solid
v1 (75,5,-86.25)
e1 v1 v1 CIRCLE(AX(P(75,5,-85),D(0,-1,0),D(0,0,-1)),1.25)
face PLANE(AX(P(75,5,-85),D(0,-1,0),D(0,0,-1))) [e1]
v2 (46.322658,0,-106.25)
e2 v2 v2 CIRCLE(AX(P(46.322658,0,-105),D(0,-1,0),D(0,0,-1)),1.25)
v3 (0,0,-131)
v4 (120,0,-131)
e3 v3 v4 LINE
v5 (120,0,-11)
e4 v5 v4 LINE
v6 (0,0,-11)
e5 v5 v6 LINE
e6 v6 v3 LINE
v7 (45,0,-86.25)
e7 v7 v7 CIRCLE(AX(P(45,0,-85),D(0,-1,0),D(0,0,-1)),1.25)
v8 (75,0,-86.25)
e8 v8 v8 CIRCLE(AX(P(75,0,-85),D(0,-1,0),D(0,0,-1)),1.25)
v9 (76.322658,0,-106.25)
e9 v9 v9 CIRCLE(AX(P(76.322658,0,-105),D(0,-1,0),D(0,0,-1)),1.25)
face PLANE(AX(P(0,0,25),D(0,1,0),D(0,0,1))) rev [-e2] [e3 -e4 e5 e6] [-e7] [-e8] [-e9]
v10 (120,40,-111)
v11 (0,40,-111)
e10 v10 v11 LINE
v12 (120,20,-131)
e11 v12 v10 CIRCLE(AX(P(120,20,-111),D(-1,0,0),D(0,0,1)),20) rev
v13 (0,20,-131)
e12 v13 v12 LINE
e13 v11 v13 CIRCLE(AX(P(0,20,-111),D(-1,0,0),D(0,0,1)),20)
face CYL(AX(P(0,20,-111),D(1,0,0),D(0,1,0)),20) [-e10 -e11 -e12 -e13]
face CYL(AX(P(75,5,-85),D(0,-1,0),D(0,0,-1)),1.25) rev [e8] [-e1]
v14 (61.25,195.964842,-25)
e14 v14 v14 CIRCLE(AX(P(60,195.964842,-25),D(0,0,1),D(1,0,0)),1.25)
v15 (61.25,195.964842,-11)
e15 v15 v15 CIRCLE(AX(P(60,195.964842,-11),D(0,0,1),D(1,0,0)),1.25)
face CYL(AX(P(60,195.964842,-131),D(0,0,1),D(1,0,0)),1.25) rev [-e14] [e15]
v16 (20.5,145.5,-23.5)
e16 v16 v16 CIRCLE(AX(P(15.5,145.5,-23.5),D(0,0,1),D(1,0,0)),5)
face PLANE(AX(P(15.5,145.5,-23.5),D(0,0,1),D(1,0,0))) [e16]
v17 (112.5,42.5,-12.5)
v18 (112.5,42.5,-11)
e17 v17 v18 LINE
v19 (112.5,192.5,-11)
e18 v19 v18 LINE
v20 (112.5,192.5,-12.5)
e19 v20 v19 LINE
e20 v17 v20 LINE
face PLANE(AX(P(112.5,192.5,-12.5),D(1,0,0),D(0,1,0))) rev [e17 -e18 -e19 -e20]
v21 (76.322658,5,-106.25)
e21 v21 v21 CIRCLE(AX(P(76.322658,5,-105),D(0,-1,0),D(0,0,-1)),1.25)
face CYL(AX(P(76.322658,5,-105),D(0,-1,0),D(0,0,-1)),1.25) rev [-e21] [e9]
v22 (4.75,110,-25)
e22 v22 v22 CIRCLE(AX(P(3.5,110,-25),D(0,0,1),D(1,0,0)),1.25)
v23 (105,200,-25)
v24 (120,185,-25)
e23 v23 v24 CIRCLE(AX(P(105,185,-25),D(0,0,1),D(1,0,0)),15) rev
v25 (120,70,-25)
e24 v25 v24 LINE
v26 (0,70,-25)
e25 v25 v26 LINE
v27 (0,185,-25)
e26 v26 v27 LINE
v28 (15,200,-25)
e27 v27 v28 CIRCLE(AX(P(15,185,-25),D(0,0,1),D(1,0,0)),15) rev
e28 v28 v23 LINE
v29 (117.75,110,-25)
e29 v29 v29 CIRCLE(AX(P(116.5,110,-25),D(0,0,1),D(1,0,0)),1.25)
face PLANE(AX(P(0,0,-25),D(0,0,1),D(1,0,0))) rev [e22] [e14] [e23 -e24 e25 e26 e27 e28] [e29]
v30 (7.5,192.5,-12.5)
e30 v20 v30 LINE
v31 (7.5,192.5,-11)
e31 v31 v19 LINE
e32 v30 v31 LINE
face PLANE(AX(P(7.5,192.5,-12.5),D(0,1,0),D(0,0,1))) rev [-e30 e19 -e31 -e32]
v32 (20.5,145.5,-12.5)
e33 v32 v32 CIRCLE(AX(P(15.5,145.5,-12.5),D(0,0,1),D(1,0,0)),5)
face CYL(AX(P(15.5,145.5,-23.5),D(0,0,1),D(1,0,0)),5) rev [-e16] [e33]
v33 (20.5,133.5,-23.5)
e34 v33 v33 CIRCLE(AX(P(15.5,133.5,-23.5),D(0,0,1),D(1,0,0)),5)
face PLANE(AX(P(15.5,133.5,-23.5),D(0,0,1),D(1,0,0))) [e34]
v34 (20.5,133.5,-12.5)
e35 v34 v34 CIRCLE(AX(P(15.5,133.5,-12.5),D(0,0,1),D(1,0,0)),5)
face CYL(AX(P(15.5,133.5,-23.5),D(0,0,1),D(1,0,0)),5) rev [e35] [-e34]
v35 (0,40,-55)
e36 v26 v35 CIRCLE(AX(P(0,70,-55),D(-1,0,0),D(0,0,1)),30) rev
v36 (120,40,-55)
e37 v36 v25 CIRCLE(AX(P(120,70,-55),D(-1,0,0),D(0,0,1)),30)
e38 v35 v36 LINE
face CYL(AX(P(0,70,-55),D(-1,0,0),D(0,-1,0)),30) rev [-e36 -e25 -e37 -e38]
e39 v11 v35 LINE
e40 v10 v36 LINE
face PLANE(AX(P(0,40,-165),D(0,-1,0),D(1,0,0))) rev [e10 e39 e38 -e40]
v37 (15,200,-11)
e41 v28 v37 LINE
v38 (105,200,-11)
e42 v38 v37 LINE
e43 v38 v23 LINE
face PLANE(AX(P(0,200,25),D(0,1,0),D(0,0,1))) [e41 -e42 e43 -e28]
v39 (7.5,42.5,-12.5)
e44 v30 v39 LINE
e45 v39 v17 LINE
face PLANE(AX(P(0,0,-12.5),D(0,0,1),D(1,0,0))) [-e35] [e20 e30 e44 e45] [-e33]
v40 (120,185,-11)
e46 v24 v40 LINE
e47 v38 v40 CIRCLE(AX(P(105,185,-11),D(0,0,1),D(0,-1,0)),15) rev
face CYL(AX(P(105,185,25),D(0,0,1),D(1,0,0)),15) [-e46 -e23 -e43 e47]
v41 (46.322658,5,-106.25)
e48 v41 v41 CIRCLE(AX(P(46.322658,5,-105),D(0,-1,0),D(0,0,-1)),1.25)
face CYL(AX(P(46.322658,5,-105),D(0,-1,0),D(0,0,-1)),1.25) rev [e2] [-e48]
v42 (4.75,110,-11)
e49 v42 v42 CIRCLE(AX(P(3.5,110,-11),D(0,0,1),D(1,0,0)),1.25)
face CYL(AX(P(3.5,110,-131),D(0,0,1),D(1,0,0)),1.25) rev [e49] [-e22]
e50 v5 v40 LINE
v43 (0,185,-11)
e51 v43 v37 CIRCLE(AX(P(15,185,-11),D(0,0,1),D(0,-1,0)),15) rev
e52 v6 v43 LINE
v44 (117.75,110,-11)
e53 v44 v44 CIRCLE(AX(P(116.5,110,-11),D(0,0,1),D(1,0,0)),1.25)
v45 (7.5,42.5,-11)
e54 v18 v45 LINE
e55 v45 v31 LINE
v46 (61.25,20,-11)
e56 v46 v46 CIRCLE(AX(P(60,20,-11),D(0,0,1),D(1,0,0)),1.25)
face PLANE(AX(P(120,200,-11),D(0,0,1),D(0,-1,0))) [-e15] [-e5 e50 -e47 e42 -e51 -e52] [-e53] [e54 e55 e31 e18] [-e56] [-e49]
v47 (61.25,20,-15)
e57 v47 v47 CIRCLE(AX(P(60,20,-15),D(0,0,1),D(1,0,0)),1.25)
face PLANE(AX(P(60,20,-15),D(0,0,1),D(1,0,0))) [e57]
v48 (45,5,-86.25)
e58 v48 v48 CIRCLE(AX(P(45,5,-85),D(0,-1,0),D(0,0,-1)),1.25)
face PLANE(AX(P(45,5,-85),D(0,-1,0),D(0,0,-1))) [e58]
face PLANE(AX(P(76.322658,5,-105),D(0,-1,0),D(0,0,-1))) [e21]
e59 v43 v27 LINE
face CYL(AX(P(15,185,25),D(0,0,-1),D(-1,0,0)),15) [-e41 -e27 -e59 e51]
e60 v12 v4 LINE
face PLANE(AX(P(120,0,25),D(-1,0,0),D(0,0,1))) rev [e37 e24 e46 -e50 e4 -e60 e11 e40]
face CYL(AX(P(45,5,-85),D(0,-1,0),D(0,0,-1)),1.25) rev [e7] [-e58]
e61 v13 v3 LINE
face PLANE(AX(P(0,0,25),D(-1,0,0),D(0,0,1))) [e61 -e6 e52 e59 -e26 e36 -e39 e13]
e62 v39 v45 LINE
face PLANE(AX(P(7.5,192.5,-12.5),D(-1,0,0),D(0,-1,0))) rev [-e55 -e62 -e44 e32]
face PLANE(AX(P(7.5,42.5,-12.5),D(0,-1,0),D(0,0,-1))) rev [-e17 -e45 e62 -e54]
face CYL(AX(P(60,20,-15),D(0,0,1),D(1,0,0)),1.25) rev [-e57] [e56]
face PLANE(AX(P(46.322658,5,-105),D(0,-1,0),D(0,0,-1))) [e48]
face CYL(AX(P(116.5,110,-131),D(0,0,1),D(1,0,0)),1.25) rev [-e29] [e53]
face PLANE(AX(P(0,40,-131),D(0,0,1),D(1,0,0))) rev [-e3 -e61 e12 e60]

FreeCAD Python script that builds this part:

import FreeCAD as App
import Part
import Sketcher


def edges_at(feature, points):
    """Names of the edges that pass closest to the given points."""
    edges = feature.Shape.Edges
    near = lambda p: min(range(len(edges)), key=lambda i: edges[i].distToShape(Part.Vertex(*p))[0])
    return sorted({f"Edge{near(p) + 1}" for p in points})


def add_polygon(sketch, points):
    """Adds a closed chain of lines whose ends are joined by coincident constraints."""
    first, n = sketch.GeometryCount, len(points)
    for a, b in zip(points, points[1:] + points[:1]):
        sketch.addGeometry(Part.LineSegment(App.Vector(*a, 0), App.Vector(*b, 0)), False)
    for i in range(n):
        sketch.addConstraint(Sketcher.Constraint("Coincident", first + i, 2, first + (i + 1) % n, 1))

doc = App.newDocument("Part")
body = doc.addObject("PartDesign::Body", "Body")

# Sketch on XY plane
sketch1 = doc.addObject("Sketcher::SketchObject", "Sketch")
body.addObject(sketch1)
sketch1.AttachmentSupport = (doc.XY_Plane, [""])
sketch1.MapMode = "FlatFace"
add_polygon(sketch1, [(0, 200), (0, 0), (120, 0), (120, 200)])  # lines 0-3
sketch1.addConstraint([
    Sketcher.Constraint("Vertical", 0),
    Sketcher.Constraint("Horizontal", 1),
    Sketcher.Constraint("Vertical", 2),
    Sketcher.Constraint("Horizontal", 3),
    Sketcher.Constraint("Coincident", 0, 2, -1, 1),
    Sketcher.Constraint("DistanceX", 1, 1, 1, 2, 120.0),
    Sketcher.Constraint("DistanceY", 0, 2, 0, 1, 200.0),
])
pad1 = doc.addObject("PartDesign::Pad", "Pad")
body.addObject(pad1)
pad1.Profile = sketch1
pad1.Length = 50
pad1.Midplane = True

# Sketch on XY plane
sketch2 = doc.addObject("Sketcher::SketchObject", "Sketch001")
body.addObject(sketch2)
sketch2.AttachmentSupport = (doc.XY_Plane, [""])
sketch2.MapMode = "FlatFace"
sketch2.AttachmentOffset = App.Placement(App.Vector(0, 0, 25), App.Rotation())
add_polygon(sketch2, [(0, 40), (0, 0), (120, 0), (120, 40)])  # lines 0-3
sketch2.addConstraint([
    Sketcher.Constraint("Vertical", 0),
    Sketcher.Constraint("Horizontal", 1),
    Sketcher.Constraint("Vertical", 2),
    Sketcher.Constraint("Horizontal", 3),
    Sketcher.Constraint("Coincident", 0, 2, -1, 1),
    Sketcher.Constraint("DistanceX", 1, 1, 1, 2, 120.0),
    Sketcher.Constraint("DistanceY", 0, 2, 0, 1, 40.0),
])
pad2 = doc.addObject("PartDesign::Pad", "Pad001")
body.addObject(pad2)
pad2.Profile = sketch2
pad2.Length = 70
doc.recompute()

fillet = doc.addObject("PartDesign::Fillet", "Fillet")
body.addObject(fillet)
fillet.Base = (pad2, edges_at(pad2, [(60, 40, 25)]))
fillet.Radius = 15

# Sketch on XY plane
sketch3 = doc.addObject("Sketcher::SketchObject", "Sketch002")
body.addObject(sketch3)
sketch3.AttachmentSupport = (doc.XY_Plane, [""])
sketch3.MapMode = "FlatFace"
sketch3.AttachmentOffset = App.Placement(App.Vector(0, 0, -25), App.Rotation())
add_polygon(sketch3, [(120, 40), (120, 0), (0, 0), (0, 40)])  # lines 0-3
sketch3.addConstraint([
    Sketcher.Constraint("Vertical", 0),
    Sketcher.Constraint("Horizontal", 1),
    Sketcher.Constraint("Vertical", 2),
    Sketcher.Constraint("Horizontal", 3),
    Sketcher.Constraint("Coincident", 1, 2, -1, 1),
    Sketcher.Constraint("DistanceX", 1, 2, 1, 1, 120.0),
    Sketcher.Constraint("DistanceY", 0, 2, 0, 1, 40.0),
])
pad3 = doc.addObject("PartDesign::Pad", "Pad002")
body.addObject(pad3)
pad3.Profile = sketch3
pad3.Length = 140
pad3.Reversed = True
doc.recompute()

fillet2 = doc.addObject("PartDesign::Fillet", "Fillet001")
body.addObject(fillet2)
fillet2.Base = (pad3, edges_at(pad3, [(60, 40, -25)]))
fillet2.Radius = 30

# Sketch on XY plane
sketch4 = doc.addObject("Sketcher::SketchObject", "Sketch003")
body.addObject(sketch4)
sketch4.AttachmentSupport = (doc.XY_Plane, [""])
sketch4.MapMode = "FlatFace"
sketch4.AttachmentOffset = App.Placement(App.Vector(0, 0, 95), App.Rotation())
add_polygon(sketch4, [(35, 35), (35, 5), (85, 5), (85, 35)])  # lines 0-3
sketch4.addConstraint([
    Sketcher.Constraint("Vertical", 0),
    Sketcher.Constraint("Horizontal", 1),
    Sketcher.Constraint("Vertical", 2),
    Sketcher.Constraint("Horizontal", 3),
    Sketcher.Constraint("DistanceX", 1, 1, 1, 2, 50.0),
    Sketcher.Constraint("DistanceY", 0, 2, 0, 1, 30.0),
    Sketcher.Constraint("DistanceX", -1, 1, 0, 2, 35.0),
    Sketcher.Constraint("DistanceY", -1, 1, 0, 2, 5.0),
])
pad4 = doc.addObject("PartDesign::Pad", "Pad003")
body.addObject(pad4)
pad4.Profile = sketch4
pad4.Length = 7.5
pad4.Reversed = True

# Sketch on XZ plane
sketch5 = doc.addObject("Sketcher::SketchObject", "Sketch004")
body.addObject(sketch5)
sketch5.AttachmentSupport = (doc.XZ_Plane, [""])
sketch5.MapMode = "FlatFace"
add_polygon(sketch5, [(10, 85), (10, 5), (110, 5), (110, 85)])  # lines 0-3
sketch5.addConstraint([
    Sketcher.Constraint("Vertical", 0),
    Sketcher.Constraint("Horizontal", 1),
    Sketcher.Constraint("Vertical", 2),
    Sketcher.Constraint("Horizontal", 3),
    Sketcher.Constraint("DistanceX", 1, 1, 1, 2, 100.0),
    Sketcher.Constraint("DistanceY", 0, 2, 0, 1, 80.0),
    Sketcher.Constraint("DistanceX", -1, 1, 0, 2, 10.0),
    Sketcher.Constraint("DistanceY", -1, 1, 0, 2, 5.0),
])
pocket1 = doc.addObject("PartDesign::Pocket", "Pocket")
body.addObject(pocket1)
pocket1.Profile = sketch5
pocket1.Length = 35

# Sketch on XY plane
sketch6 = doc.addObject("Sketcher::SketchObject", "Sketch005")
body.addObject(sketch6)
sketch6.AttachmentSupport = (doc.XY_Plane, [""])
sketch6.MapMode = "FlatFace"
sketch6.AttachmentOffset = App.Placement(App.Vector(0, 0, 95), App.Rotation())
sketch6.addGeometry(Part.Circle(App.Vector(48, 20, 0), App.Vector(0, 0, 1), 8), False)
sketch6.addConstraint([
    Sketcher.Constraint("Diameter", 0, 15.0),
    Sketcher.Constraint("DistanceY", -1, 1, 0, 3, 20.0),
    Sketcher.Constraint("DistanceX", -1, 1, 0, 3, 47.5),
])
pocket2 = doc.addObject("PartDesign::Pocket", "Pocket001")
body.addObject(pocket2)
pocket2.Profile = sketch6
pocket2.Type = "UpToFirst"

# Sketch on XY plane
sketch7 = doc.addObject("Sketcher::SketchObject", "Sketch006")
body.addObject(sketch7)
sketch7.AttachmentSupport = (doc.XY_Plane, [""])
sketch7.MapMode = "FlatFace"
sketch7.AttachmentOffset = App.Placement(App.Vector(0, 0, 95), App.Rotation())
sketch7.addGeometry(Part.Circle(App.Vector(72, 20, 0), App.Vector(0, 0, 1), 8), False)
sketch7.addConstraint([
    Sketcher.Constraint("Diameter", 0, 15.0),
    Sketcher.Constraint("DistanceY", -1, 1, 0, 3, 20.0),
    Sketcher.Constraint("DistanceX", -1, 1, 0, 3, 72.5),
])
pocket3 = doc.addObject("PartDesign::Pocket", "Pocket002")
body.addObject(pocket3)
pocket3.Profile = sketch7
pocket3.Type = "UpToFirst"

# Sketch on XY plane
sketch8 = doc.addObject("Sketcher::SketchObject", "Sketch007")
body.addObject(sketch8)
sketch8.AttachmentSupport = (doc.XY_Plane, [""])
sketch8.MapMode = "FlatFace"
sketch8.AttachmentOffset = App.Placement(App.Vector(0, 0, 85), App.Rotation())
add_polygon(sketch8, [(85, 35), (85, 5), (35, 5), (35, 35)])  # lines 0-3
sketch8.addConstraint([
    Sketcher.Constraint("Vertical", 0),
    Sketcher.Constraint("Horizontal", 1),
    Sketcher.Constraint("Vertical", 2),
    Sketcher.Constraint("Horizontal", 3),
    Sketcher.Constraint("DistanceX", 1, 2, 1, 1, 50.0),
    Sketcher.Constraint("DistanceY", 0, 2, 0, 1, 30.0),
    Sketcher.Constraint("DistanceX", -1, 1, 0, 2, 85.0),
    Sketcher.Constraint("DistanceY", -1, 1, 0, 2, 5.0),
])
pocket4 = doc.addObject("PartDesign::Pocket", "Pocket003")
body.addObject(pocket4)
pocket4.Profile = sketch8
pocket4.Length = 5
pocket4.Reversed = True

# Sketch on YZ plane
sketch9 = doc.addObject("Sketcher::SketchObject", "Sketch008")
body.addObject(sketch9)
sketch9.AttachmentSupport = (doc.YZ_Plane, [""])
sketch9.MapMode = "FlatFace"
sketch9.AttachmentOffset = App.Placement(App.Vector(0, 0, 120), App.Rotation())
sketch9.addGeometry(Part.Circle(App.Vector(20, 60, 0), App.Vector(0, 0, 1), 12), False)
sketch9.addConstraint([
    Sketcher.Constraint("Diameter", 0, 25.0),
    Sketcher.Constraint("DistanceX", -1, 1, 0, 3, 20.0),
    Sketcher.Constraint("DistanceY", -1, 1, 0, 3, 60.0),
])
pocket5 = doc.addObject("PartDesign::Pocket", "Pocket004")
body.addObject(pocket5)
pocket5.Profile = sketch9
pocket5.Type = "ThroughAll"
pocket5.Midplane = True

# Sketch on XY plane
sketch10 = doc.addObject("Sketcher::SketchObject", "Sketch009")
body.addObject(sketch10)
sketch10.AttachmentSupport = (doc.XY_Plane, [""])
sketch10.MapMode = "FlatFace"
sketch10.AttachmentOffset = App.Placement(App.Vector(0, 0, 85), App.Rotation())
add_polygon(sketch10, [(68, 5), (68, 0), (52, 0), (52, 5)])  # lines 0-3
sketch10.addConstraint([
    Sketcher.Constraint("Vertical", 0),
    Sketcher.Constraint("Horizontal", 1),
    Sketcher.Constraint("Vertical", 2),
    Sketcher.Constraint("Horizontal", 3),
    Sketcher.Constraint("PointOnObject", 0, 2, -1),
    Sketcher.Constraint("DistanceX", 1, 2, 1, 1, 15.0),
    Sketcher.Constraint("DistanceY", 0, 2, 0, 1, 5.0),
    Sketcher.Constraint("DistanceX", -1, 1, 0, 2, 67.5),
])
pocket6 = doc.addObject("PartDesign::Pocket", "Pocket005")
body.addObject(pocket6)
pocket6.Profile = sketch10
pocket6.Length = 3
pocket6.Reversed = True

# Sketch on XY plane
sketch11 = doc.addObject("Sketcher::SketchObject", "Sketch010")
body.addObject(sketch11)
sketch11.AttachmentSupport = (doc.XY_Plane, [""])
sketch11.MapMode = "FlatFace"
add_polygon(sketch11, [(-6, 207), (-6, -23), (136, -23), (136, 207)])  # lines 0-3
sketch11.addConstraint([
    Sketcher.Constraint("Vertical", 0),
    Sketcher.Constraint("Horizontal", 1),
    Sketcher.Constraint("Vertical", 2),
    Sketcher.Constraint("Horizontal", 3),
    Sketcher.Constraint("DistanceX", 1, 1, 1, 2, 142.93336),
    Sketcher.Constraint("DistanceY", 0, 2, 0, 1, 230.615169),
    Sketcher.Constraint("DistanceY", 0, 2, -1, 1, 23.383099),
    Sketcher.Constraint("DistanceX", 0, 2, -1, 1, 6.499078),
])
pocket7 = doc.addObject("PartDesign::Pocket", "Pocket006")
body.addObject(pocket7)
pocket7.Profile = sketch11
pocket7.Length = 141
pocket7.Reversed = True

# Sketch on XY plane
sketch12 = doc.addObject("Sketcher::SketchObject", "Sketch011")
body.addObject(sketch12)
sketch12.AttachmentSupport = (doc.XY_Plane, [""])
sketch12.MapMode = "FlatFace"
add_polygon(sketch12, [(8, 192), (8, 42), (112, 42), (112, 192)])  # lines 0-3
sketch12.addConstraint([
    Sketcher.Constraint("Vertical", 0),
    Sketcher.Constraint("Horizontal", 1),
    Sketcher.Constraint("Vertical", 2),
    Sketcher.Constraint("Horizontal", 3),
    Sketcher.Constraint("DistanceX", 1, 1, 1, 2, 105.0),
    Sketcher.Constraint("DistanceY", 0, 2, 0, 1, 150.0),
    Sketcher.Constraint("DistanceX", -1, 1, 0, 2, 7.5),
    Sketcher.Constraint("DistanceY", -1, 1, 0, 2, 42.5),
])
pocket8 = doc.addObject("PartDesign::Pocket", "Pocket007")
body.addObject(pocket8)
pocket8.Profile = sketch12
pocket8.Length = 12.5

# Sketch on XZ plane
sketch13 = doc.addObject("Sketcher::SketchObject", "Sketch012")
body.addObject(sketch13)
sketch13.AttachmentSupport = (doc.XZ_Plane, [""])
sketch13.MapMode = "FlatFace"
sketch13.addGeometry([
    Part.Circle(App.Vector(76.3, -105, 0), App.Vector(0, 0, 1), 1.2),
    Part.Circle(App.Vector(46.3, -105, 0), App.Vector(0, 0, 1), 1.2),
    Part.Circle(App.Vector(45, -85, 0), App.Vector(0, 0, 1), 1.2),
    Part.Circle(App.Vector(75, -85, 0), App.Vector(0, 0, 1), 1.2),
], False)
sketch13.addConstraint([
    Sketcher.Constraint("Equal", 0, 1),
    Sketcher.Constraint("Equal", 1, 2),
    Sketcher.Constraint("Equal", 2, 3),
    Sketcher.Constraint("Horizontal", 0, 3, 1, 3),
    Sketcher.Constraint("Horizontal", 2, 3, 3, 3),
    Sketcher.Constraint("Diameter", 0, 2.5),
    Sketcher.Constraint("DistanceY", 0, 3, -1, 1, 105.0),
    Sketcher.Constraint("DistanceX", -1, 1, 2, 3, 45.0),
    Sketcher.Constraint("DistanceY", 2, 3, -1, 1, 85.0),
    Sketcher.Constraint("DistanceX", -1, 1, 3, 3, 75.0),
    Sketcher.Constraint("DistanceX", 1, 3, 0, 3, 30.0),
    Sketcher.Constraint("DistanceX", -1, 1, 0, 3, 76.322658),
])
pocket9 = doc.addObject("PartDesign::Pocket", "Pocket008")
body.addObject(pocket9)
pocket9.Profile = sketch13
pocket9.Length = 5
doc.recompute()

fillet3 = doc.addObject("PartDesign::Fillet", "Fillet002")
body.addObject(fillet3)
fillet3.Base = (pocket9, edges_at(pocket9, [(120, 200, -12.5), (0, 200, -12.5), (60, 40, -165)]))
fillet3.Radius = 15

# Sketch on YZ plane
sketch14 = doc.addObject("Sketcher::SketchObject", "Sketch013")
body.addObject(sketch14)
sketch14.AttachmentSupport = (doc.YZ_Plane, [""])
sketch14.MapMode = "FlatFace"
add_polygon(sketch14, [(200, 0), (0, 0), (0, -11), (200, -11)])  # lines 0-3
sketch14.addConstraint([
    Sketcher.Constraint("Horizontal", 0),
    Sketcher.Constraint("Vertical", 1),
    Sketcher.Constraint("Horizontal", 2),
    Sketcher.Constraint("Vertical", 3),
    Sketcher.Constraint("Coincident", 0, 2, -1, 1),
    Sketcher.Constraint("DistanceX", 0, 2, 0, 1, 200.0),
    Sketcher.Constraint("DistanceY", 1, 2, 1, 1, 11.0),
])
pocket10 = doc.addObject("PartDesign::Pocket", "Pocket009")
body.addObject(pocket10)
pocket10.Profile = sketch14
pocket10.Type = "ThroughAll"
pocket10.Reversed = True

# Sketch on XY plane
sketch15 = doc.addObject("Sketcher::SketchObject", "Sketch014")
body.addObject(sketch15)
sketch15.AttachmentSupport = (doc.XY_Plane, [""])
sketch15.MapMode = "FlatFace"
sketch15.AttachmentOffset = App.Placement(App.Vector(0, 0, -12.5), App.Rotation())
sketch15.addGeometry([
    Part.Circle(App.Vector(16, 146, 0), App.Vector(0, 0, 1), 5),
    Part.Circle(App.Vector(16, 134, 0), App.Vector(0, 0, 1), 5),
], False)
sketch15.addConstraint([
    Sketcher.Constraint("Equal", 0, 1),
    Sketcher.Constraint("Vertical", 0, 3, 1, 3),
    Sketcher.Constraint("Diameter", 0, 10.0),
    Sketcher.Constraint("DistanceY", 1, 3, 0, 3, 12.0),
    Sketcher.Constraint("DistanceX", -1, 1, 0, 3, 15.5),
    Sketcher.Constraint("DistanceY", -1, 1, 0, 3, 145.5),
])
pocket11 = doc.addObject("PartDesign::Pocket", "Pocket010")
body.addObject(pocket11)
pocket11.Profile = sketch15
pocket11.Length = 11

# Sketch on YZ plane
sketch16 = doc.addObject("Sketcher::SketchObject", "Sketch015")
body.addObject(sketch16)
sketch16.AttachmentSupport = (doc.YZ_Plane, [""])
sketch16.MapMode = "FlatFace"
sketch16.AttachmentOffset = App.Placement(App.Vector(0, 0, 120), App.Rotation())
add_polygon(sketch16, [(40, -131), (0, -131), (0, -165), (40, -165)])  # lines 0-3
sketch16.addConstraint([
    Sketcher.Constraint("Horizontal", 0),
    Sketcher.Constraint("Vertical", 1),
    Sketcher.Constraint("Horizontal", 2),
    Sketcher.Constraint("Vertical", 3),
    Sketcher.Constraint("PointOnObject", 0, 2, -2),
    Sketcher.Constraint("DistanceX", 0, 2, 0, 1, 40.0),
    Sketcher.Constraint("DistanceY", 1, 2, 1, 1, 34.0),
    Sketcher.Constraint("DistanceY", 0, 2, -1, 1, 131.0),
])
pocket12 = doc.addObject("PartDesign::Pocket", "Pocket011")
body.addObject(pocket12)
pocket12.Profile = sketch16
pocket12.Type = "ThroughAll"
doc.recompute()

fillet4 = doc.addObject("PartDesign::Fillet", "Fillet003")
body.addObject(fillet4)
fillet4.Base = (pocket12, edges_at(pocket12, [(60, 40, -131)]))
fillet4.Radius = 20

# Sketch on XY plane
sketch17 = doc.addObject("Sketcher::SketchObject", "Sketch016")
body.addObject(sketch17)
sketch17.AttachmentSupport = (doc.XY_Plane, [""])
sketch17.MapMode = "FlatFace"
sketch17.AttachmentOffset = App.Placement(App.Vector(0, 0, -11), App.Rotation())
sketch17.addGeometry(Part.Circle(App.Vector(60, 20, 0), App.Vector(0, 0, 1), 1.2), False)
sketch17.addConstraint([
    Sketcher.Constraint("Diameter", 0, 2.5),
    Sketcher.Constraint("DistanceX", -1, 1, 0, 3, 60.0),
    Sketcher.Constraint("DistanceY", -1, 1, 0, 3, 20.0),
])
pocket13 = doc.addObject("PartDesign::Pocket", "Pocket012")
body.addObject(pocket13)
pocket13.Profile = sketch17
pocket13.Length = 4

# Sketch on XY plane
sketch18 = doc.addObject("Sketcher::SketchObject", "Sketch017")
body.addObject(sketch18)
sketch18.AttachmentSupport = (doc.XY_Plane, [""])
sketch18.MapMode = "FlatFace"
sketch18.AttachmentOffset = App.Placement(App.Vector(0, 0, -11), App.Rotation())
sketch18.addGeometry([
    Part.Circle(App.Vector(3.5, 110, 0), App.Vector(0, 0, 1), 1.2),
    Part.Circle(App.Vector(116.5, 110, 0), App.Vector(0, 0, 1), 1.2),
    Part.Circle(App.Vector(60, 196, 0), App.Vector(0, 0, 1), 1.2),
], False)
sketch18.addConstraint([
    Sketcher.Constraint("Equal", 0, 1),
    Sketcher.Constraint("Equal", 1, 2),
    Sketcher.Constraint("Horizontal", 0, 3, 1, 3),
    Sketcher.Constraint("Diameter", 0, 2.5),
    Sketcher.Constraint("DistanceY", -1, 1, 0, 3, 110.0),
    Sketcher.Constraint("DistanceX", -1, 1, 2, 3, 60.0),
    Sketcher.Constraint("DistanceX", 0, 3, 1, 3, 113.0),
    Sketcher.Constraint("DistanceX", -1, 1, 0, 3, 3.5),
    Sketcher.Constraint("DistanceY", -1, 1, 2, 3, 195.964842),
])
pocket14 = doc.addObject("PartDesign::Pocket", "Pocket013")
body.addObject(pocket14)
pocket14.Profile = sketch18
pocket14.Type = "ThroughAll"

doc.recompute()
